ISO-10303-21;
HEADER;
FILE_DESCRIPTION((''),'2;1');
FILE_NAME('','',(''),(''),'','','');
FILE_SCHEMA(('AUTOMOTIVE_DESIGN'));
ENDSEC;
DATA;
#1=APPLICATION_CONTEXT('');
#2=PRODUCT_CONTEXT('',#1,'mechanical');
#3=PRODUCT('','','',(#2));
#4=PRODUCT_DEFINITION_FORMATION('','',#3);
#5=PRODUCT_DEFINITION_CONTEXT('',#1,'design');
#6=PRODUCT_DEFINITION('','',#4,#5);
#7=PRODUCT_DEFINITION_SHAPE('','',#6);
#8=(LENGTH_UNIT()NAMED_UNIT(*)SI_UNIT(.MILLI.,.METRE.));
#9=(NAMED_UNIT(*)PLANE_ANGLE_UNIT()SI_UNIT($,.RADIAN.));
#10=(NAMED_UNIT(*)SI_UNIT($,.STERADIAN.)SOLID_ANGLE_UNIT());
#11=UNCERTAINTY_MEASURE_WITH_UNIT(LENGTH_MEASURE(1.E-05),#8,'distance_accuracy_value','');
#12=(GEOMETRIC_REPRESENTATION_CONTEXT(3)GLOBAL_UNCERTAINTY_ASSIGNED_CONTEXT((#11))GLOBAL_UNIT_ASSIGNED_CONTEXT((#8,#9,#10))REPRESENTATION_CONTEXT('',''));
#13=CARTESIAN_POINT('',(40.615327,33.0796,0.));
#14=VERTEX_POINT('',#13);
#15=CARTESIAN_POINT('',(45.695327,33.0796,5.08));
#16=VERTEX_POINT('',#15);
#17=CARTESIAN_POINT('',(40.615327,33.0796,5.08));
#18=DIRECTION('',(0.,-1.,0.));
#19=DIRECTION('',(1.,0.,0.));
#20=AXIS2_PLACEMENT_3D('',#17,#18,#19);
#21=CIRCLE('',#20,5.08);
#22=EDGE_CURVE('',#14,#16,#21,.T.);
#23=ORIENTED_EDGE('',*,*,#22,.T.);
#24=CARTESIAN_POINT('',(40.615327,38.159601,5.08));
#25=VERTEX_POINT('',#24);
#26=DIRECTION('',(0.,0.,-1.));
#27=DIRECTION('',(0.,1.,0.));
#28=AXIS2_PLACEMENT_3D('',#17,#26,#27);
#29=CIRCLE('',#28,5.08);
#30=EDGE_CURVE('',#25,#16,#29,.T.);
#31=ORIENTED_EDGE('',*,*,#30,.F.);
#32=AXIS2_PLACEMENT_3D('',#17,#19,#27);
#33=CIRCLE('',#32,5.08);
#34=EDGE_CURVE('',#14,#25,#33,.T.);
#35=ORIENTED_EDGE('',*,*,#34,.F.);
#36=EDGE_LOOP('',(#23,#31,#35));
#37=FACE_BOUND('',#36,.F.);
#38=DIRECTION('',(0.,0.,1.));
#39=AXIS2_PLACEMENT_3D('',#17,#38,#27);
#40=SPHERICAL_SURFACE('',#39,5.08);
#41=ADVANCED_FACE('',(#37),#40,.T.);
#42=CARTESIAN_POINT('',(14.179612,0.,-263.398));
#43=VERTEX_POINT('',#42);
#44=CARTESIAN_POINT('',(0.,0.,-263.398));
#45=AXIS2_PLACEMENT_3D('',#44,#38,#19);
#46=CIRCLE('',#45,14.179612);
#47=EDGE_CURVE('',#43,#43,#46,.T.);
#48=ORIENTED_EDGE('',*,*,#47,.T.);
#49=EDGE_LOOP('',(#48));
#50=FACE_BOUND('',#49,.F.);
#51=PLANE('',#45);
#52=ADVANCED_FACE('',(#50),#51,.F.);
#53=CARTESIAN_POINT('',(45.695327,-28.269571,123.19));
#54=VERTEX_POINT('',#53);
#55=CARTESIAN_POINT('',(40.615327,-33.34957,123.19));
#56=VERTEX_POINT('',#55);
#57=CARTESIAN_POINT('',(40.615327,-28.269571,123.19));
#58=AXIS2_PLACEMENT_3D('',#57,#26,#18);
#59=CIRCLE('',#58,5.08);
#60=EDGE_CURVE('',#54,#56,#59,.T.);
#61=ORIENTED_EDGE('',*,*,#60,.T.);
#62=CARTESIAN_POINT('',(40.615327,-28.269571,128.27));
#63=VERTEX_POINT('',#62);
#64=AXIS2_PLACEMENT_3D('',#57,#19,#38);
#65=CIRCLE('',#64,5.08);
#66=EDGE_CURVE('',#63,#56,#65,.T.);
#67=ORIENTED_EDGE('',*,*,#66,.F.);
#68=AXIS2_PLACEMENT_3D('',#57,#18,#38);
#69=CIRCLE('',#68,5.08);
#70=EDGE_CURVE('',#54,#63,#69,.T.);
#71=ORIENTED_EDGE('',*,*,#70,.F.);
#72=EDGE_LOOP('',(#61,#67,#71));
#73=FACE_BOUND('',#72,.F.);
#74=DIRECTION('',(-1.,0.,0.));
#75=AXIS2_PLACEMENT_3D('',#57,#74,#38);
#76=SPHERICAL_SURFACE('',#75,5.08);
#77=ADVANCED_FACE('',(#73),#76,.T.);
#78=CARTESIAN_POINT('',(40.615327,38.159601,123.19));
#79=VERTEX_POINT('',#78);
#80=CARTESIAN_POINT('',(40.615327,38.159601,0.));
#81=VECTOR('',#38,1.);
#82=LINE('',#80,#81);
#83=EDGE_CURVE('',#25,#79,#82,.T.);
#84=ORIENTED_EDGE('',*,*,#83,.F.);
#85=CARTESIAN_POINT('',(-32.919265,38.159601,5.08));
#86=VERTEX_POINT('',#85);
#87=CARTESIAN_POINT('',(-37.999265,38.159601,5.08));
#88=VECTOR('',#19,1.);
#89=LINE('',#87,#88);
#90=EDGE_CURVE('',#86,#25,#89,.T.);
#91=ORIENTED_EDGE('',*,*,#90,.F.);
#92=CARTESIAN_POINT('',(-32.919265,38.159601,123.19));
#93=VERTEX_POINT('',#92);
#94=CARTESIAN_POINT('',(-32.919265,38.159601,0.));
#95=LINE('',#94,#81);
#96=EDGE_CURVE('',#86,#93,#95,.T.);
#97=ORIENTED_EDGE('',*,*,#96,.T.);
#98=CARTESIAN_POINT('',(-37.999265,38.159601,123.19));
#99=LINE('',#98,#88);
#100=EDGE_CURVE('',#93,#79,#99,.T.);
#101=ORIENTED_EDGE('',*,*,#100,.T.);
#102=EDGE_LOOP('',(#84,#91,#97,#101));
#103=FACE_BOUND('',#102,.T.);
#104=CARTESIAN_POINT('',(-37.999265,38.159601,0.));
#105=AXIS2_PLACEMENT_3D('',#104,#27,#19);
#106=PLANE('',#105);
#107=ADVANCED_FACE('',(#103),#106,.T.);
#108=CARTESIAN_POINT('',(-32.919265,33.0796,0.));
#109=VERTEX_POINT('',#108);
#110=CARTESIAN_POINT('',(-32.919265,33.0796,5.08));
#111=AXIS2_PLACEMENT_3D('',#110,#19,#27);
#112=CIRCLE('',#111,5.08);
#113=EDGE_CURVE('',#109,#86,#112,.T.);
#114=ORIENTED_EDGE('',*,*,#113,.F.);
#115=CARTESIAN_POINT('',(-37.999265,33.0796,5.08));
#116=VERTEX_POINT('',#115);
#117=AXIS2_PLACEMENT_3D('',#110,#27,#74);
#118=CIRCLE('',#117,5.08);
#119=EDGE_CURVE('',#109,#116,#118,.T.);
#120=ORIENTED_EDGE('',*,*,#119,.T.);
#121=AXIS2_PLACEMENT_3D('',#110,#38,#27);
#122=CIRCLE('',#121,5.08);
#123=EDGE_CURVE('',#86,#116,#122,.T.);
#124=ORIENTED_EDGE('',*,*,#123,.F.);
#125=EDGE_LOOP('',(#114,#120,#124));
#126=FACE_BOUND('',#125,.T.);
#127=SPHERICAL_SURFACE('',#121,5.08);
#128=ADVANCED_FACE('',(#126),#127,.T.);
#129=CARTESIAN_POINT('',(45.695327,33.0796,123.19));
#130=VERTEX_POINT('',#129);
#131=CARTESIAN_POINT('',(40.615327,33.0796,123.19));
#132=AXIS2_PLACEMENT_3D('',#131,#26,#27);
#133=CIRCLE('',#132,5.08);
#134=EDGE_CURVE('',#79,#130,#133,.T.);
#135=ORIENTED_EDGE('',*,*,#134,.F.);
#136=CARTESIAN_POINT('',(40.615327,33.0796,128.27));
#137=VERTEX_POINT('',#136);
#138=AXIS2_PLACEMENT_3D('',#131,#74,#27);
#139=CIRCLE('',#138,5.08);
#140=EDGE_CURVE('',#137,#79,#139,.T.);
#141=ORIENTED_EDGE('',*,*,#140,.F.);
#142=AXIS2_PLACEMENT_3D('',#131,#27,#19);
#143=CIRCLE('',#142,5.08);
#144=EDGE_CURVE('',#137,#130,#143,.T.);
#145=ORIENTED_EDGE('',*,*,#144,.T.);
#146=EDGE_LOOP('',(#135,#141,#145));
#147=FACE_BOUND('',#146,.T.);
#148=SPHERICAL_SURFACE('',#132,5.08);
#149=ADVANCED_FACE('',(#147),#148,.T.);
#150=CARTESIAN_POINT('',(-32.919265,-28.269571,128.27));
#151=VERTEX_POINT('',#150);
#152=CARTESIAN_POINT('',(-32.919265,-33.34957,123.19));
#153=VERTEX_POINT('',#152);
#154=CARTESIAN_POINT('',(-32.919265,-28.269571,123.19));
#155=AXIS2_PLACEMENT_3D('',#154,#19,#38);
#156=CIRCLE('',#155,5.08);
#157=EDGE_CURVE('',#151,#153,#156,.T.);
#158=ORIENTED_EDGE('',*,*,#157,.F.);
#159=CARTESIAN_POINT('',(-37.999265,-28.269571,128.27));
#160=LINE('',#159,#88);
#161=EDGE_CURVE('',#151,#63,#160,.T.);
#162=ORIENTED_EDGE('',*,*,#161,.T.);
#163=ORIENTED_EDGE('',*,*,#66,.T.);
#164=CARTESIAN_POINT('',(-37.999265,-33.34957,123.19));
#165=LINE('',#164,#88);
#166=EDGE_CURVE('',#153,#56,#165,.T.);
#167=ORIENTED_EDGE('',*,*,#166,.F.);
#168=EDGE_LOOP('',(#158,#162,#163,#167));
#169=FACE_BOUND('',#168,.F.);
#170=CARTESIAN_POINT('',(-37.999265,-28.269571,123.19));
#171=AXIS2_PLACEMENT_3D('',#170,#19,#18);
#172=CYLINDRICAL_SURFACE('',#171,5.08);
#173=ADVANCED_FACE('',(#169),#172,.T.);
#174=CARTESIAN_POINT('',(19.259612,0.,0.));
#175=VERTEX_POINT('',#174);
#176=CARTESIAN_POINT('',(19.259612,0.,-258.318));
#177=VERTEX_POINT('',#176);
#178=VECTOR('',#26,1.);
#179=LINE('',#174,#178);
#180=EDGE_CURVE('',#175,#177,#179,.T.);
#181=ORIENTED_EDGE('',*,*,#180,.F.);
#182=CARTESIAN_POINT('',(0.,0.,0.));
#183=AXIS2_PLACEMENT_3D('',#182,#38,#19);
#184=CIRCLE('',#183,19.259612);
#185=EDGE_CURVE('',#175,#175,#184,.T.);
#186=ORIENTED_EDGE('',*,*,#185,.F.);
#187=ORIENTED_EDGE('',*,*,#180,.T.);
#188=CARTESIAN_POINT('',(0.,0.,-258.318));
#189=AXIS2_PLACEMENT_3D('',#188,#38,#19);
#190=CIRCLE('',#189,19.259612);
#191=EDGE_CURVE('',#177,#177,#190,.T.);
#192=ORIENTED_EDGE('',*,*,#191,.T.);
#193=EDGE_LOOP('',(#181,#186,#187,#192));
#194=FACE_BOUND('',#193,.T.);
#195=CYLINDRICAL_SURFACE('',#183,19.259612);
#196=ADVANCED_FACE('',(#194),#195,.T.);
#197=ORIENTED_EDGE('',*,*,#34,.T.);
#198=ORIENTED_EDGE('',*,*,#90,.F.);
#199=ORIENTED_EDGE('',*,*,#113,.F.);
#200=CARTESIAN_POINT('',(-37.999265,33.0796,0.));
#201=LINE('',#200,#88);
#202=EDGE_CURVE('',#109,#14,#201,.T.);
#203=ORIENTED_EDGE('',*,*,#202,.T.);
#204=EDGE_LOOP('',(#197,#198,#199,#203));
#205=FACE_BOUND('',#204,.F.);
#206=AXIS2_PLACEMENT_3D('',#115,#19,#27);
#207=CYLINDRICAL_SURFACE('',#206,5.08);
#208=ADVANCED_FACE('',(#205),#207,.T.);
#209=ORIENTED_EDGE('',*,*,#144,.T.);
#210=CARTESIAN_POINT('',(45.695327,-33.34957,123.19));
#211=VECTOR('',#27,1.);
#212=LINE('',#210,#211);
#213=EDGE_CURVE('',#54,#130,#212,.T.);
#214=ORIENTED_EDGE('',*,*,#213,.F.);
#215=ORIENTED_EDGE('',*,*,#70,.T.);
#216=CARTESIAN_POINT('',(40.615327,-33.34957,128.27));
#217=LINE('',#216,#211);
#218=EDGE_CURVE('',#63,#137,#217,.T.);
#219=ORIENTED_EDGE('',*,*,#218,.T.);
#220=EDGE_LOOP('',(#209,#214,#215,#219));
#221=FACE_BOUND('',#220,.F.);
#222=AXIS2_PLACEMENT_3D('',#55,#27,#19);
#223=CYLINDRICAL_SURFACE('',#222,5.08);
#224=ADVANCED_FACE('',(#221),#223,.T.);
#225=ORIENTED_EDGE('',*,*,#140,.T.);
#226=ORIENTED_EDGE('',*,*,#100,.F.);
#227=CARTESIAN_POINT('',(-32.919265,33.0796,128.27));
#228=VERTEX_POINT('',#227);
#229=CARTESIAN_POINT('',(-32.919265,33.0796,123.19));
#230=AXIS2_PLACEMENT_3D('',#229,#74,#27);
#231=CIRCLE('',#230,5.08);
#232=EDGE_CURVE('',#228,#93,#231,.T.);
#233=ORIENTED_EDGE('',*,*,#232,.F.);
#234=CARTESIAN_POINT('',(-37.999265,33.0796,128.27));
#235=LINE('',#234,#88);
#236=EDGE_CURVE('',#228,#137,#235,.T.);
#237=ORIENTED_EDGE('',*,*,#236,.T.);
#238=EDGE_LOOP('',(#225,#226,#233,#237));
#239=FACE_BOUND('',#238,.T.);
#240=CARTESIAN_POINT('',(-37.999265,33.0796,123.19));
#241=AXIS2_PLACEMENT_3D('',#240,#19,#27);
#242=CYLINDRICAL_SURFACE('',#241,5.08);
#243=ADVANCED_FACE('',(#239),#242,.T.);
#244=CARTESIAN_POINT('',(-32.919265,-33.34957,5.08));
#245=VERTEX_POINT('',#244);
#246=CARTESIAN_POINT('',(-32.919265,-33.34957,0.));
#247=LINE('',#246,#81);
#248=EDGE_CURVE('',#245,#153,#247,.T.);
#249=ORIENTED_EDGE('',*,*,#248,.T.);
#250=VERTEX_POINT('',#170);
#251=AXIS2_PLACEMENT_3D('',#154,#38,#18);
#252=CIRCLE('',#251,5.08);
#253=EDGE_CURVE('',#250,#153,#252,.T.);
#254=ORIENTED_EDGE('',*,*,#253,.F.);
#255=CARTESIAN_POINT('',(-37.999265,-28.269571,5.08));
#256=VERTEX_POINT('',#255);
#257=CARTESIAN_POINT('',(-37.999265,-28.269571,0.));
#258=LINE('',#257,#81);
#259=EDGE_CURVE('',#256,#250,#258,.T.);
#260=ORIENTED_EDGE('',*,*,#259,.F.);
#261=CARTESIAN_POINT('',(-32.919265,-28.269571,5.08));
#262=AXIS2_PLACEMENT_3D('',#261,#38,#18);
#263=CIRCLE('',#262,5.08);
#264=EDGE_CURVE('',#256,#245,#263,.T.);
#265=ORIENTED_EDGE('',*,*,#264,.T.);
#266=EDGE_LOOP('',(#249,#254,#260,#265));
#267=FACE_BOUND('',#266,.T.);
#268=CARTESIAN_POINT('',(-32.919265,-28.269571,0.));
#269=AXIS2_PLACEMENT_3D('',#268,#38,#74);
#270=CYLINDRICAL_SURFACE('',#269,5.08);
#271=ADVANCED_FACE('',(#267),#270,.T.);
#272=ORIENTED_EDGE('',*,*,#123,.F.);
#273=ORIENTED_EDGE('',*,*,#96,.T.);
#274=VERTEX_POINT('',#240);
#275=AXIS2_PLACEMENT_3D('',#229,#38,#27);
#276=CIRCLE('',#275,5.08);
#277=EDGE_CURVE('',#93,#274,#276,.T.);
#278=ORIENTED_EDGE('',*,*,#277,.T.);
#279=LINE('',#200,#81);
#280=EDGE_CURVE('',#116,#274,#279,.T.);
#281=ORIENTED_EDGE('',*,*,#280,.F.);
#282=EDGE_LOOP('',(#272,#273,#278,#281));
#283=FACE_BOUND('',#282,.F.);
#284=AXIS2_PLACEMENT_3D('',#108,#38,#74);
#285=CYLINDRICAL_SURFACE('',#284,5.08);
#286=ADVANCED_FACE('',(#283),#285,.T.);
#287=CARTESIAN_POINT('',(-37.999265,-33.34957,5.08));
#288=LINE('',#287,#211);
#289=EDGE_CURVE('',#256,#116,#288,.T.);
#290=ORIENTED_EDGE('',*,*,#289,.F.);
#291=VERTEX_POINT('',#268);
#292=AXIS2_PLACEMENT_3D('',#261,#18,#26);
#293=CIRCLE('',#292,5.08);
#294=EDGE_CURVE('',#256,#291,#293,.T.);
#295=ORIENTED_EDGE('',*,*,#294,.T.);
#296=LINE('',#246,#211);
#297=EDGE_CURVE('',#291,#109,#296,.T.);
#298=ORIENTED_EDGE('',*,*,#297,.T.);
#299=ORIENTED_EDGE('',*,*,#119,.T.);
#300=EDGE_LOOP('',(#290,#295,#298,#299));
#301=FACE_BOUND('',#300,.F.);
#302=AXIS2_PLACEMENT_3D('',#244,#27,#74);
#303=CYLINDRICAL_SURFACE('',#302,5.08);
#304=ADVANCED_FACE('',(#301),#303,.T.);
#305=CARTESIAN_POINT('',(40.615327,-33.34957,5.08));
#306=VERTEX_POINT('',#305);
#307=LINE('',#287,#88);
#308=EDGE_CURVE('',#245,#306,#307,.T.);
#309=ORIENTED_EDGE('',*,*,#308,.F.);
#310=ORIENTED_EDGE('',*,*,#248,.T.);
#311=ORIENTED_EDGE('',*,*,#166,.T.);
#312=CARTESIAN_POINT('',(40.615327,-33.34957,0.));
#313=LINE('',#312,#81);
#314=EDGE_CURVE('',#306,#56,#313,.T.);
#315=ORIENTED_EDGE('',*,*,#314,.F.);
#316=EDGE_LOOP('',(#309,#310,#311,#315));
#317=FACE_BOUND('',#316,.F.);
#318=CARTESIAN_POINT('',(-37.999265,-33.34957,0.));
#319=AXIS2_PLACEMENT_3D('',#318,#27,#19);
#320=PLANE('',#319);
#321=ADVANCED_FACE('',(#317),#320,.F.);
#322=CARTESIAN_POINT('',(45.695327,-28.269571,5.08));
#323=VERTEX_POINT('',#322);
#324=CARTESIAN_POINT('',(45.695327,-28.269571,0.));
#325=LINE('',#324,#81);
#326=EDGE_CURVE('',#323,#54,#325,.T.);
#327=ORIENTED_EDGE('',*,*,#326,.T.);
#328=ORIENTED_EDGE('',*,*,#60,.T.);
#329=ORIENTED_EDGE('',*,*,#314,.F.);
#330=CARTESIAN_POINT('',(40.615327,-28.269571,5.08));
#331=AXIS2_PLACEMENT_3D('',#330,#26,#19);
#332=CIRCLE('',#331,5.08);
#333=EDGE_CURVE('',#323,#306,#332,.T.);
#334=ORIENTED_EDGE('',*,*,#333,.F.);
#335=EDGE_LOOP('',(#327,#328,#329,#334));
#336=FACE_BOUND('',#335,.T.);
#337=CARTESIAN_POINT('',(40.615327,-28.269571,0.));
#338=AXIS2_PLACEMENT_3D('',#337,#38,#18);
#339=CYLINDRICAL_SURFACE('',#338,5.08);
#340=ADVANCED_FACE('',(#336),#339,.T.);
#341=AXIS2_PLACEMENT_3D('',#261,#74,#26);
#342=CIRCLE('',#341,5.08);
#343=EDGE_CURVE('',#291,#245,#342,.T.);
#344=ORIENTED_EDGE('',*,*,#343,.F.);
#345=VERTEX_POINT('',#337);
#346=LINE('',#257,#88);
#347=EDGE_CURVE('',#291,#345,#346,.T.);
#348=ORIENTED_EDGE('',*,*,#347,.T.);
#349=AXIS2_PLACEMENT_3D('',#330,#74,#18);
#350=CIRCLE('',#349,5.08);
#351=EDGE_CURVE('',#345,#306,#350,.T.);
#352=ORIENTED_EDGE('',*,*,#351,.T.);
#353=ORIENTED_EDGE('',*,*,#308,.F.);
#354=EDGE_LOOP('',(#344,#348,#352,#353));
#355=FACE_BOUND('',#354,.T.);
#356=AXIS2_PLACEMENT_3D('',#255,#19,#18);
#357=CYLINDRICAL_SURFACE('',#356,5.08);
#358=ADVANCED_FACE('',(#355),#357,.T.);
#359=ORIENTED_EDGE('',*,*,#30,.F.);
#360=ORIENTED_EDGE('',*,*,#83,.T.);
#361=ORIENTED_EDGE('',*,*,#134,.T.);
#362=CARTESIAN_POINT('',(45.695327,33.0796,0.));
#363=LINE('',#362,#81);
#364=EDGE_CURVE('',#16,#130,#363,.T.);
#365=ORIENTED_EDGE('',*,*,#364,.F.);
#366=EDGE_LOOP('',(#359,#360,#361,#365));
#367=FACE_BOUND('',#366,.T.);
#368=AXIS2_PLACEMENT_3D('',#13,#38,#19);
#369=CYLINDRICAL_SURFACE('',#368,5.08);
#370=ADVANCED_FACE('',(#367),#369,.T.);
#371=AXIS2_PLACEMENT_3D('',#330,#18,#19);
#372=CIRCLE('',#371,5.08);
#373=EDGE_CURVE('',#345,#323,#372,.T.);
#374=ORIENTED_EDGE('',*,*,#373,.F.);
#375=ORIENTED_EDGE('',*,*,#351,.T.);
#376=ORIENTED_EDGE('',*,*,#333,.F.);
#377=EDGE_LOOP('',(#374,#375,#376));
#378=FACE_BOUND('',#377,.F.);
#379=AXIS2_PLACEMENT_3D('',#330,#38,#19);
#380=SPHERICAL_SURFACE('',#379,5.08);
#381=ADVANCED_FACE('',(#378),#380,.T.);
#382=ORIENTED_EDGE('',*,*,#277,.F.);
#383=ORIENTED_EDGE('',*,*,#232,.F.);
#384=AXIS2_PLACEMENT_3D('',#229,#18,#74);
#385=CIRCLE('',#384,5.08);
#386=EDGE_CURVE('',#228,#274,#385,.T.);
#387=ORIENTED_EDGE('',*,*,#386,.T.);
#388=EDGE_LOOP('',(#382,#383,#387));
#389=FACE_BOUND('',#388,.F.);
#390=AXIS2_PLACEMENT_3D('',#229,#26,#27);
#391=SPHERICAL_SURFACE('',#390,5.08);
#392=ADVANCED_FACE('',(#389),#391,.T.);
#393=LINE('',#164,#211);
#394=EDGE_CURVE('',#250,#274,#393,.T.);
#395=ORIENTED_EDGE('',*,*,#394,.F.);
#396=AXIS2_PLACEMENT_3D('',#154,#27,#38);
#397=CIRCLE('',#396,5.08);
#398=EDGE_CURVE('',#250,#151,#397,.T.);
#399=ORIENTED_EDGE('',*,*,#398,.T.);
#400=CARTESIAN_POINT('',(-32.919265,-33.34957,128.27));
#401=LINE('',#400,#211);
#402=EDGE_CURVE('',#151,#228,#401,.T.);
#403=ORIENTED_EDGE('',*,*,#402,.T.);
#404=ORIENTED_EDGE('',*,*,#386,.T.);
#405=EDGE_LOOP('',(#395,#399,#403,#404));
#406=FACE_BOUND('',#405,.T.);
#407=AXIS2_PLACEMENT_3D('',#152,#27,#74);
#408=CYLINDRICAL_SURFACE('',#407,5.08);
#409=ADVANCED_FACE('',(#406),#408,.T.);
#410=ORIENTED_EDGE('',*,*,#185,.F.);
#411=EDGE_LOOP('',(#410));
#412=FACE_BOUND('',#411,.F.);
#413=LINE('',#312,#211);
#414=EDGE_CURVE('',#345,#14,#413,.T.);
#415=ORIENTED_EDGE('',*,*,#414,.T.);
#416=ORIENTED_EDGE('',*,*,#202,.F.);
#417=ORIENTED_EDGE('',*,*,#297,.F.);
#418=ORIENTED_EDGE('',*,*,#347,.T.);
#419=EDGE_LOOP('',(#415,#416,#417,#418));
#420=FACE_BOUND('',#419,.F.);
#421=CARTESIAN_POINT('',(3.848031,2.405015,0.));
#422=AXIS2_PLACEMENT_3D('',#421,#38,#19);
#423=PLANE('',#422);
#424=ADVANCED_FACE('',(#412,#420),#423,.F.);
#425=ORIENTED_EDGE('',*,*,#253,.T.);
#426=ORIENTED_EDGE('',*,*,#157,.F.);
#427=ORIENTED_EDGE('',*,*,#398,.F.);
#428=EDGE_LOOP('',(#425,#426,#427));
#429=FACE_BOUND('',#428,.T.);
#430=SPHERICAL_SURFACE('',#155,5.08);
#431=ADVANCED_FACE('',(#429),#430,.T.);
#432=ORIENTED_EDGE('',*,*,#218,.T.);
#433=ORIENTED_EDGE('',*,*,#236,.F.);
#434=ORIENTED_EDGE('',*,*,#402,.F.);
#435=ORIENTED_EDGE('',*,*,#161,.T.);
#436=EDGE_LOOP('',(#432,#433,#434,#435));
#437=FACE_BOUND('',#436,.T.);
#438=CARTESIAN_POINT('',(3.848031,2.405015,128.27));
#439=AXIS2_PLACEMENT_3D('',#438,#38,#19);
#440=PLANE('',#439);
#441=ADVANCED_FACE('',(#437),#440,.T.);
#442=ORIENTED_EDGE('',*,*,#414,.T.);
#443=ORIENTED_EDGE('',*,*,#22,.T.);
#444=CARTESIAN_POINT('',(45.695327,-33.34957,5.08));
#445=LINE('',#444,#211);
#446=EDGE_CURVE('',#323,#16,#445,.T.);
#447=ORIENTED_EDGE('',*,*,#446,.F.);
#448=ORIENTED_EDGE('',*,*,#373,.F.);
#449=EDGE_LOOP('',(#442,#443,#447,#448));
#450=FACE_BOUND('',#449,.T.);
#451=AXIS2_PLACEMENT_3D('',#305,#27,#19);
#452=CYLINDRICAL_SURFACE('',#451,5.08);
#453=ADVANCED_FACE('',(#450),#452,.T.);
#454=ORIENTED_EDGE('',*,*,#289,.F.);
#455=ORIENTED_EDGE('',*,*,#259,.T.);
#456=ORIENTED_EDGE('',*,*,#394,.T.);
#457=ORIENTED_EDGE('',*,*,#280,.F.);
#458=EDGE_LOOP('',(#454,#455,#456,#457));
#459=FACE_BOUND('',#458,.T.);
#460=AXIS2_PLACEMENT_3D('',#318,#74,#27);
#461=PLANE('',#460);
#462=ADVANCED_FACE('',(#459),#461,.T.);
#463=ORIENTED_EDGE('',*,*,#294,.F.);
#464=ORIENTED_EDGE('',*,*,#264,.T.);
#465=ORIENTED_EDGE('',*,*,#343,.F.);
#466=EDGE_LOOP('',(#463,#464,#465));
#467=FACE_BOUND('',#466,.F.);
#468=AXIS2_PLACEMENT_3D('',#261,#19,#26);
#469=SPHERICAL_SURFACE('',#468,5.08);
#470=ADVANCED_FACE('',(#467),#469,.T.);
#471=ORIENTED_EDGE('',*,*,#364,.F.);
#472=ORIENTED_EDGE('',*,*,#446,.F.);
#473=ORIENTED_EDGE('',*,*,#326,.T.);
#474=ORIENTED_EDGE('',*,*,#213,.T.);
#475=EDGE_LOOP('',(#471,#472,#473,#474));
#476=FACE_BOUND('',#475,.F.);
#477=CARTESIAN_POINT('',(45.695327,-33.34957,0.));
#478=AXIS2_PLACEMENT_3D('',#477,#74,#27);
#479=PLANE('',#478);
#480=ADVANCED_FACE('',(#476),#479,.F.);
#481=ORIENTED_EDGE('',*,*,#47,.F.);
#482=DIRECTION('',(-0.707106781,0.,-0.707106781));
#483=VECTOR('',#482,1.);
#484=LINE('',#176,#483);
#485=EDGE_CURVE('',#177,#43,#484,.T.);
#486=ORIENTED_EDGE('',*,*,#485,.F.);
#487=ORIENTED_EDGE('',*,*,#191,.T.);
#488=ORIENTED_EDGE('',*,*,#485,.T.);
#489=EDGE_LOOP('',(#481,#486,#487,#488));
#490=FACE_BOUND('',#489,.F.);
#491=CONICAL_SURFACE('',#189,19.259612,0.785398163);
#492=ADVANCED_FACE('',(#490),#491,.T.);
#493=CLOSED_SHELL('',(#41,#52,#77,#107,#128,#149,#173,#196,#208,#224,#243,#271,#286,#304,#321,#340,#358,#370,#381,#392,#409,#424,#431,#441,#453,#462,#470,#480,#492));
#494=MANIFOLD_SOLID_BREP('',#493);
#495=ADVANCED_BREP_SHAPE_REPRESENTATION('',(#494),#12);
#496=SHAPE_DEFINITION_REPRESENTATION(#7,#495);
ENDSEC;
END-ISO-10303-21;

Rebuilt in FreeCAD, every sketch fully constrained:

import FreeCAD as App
import Part
import Sketcher

V = App.Vector
Q = App.Units.Quantity


def edges_at(feature, points):
    """Names of the edges that pass closest to the given points."""
    edges = feature.Shape.Edges
    near = lambda p: min(range(len(edges)), key=lambda i: edges[i].distToShape(Part.Vertex(*p))[0])
    return sorted({f"Edge{near(p) + 1}" for p in points})


def add_polygon(sketch, points):
    """Adds a closed chain of lines whose ends are joined by coincident constraints."""
    first, n = sketch.GeometryCount, len(points)
    for a, b in zip(points, points[1:] + points[:1]):
        sketch.addGeometry(Part.LineSegment(App.Vector(*a, 0), App.Vector(*b, 0)), False)
    for i in range(n):
        sketch.addConstraint(Sketcher.Constraint("Coincident", first + i, 2, first + (i + 1) % n, 1))

doc = App.newDocument("Part")
body = doc.addObject("PartDesign::Body", "Body")

sketch1 = body.newObject("Sketcher::SketchObject", "Sketch")
sketch1.AttachmentSupport = (doc.getObject("XY_Plane"), [""])
sketch1.MapMode = "FlatFace"
add_polygon(sketch1, [(-38, 38), (-38, -33), (46, -33), (46, 38)])
sketch1.addConstraint(Sketcher.Constraint("Vertical", 0))
sketch1.addConstraint(Sketcher.Constraint("Horizontal", 1))
sketch1.addConstraint(Sketcher.Constraint("Vertical", 2))
sketch1.addConstraint(Sketcher.Constraint("Horizontal", 3))
sketch1.addConstraint(Sketcher.Constraint("DistanceX", 1, 1, 1, 2, Q("83.694592 mm")))
sketch1.addConstraint(Sketcher.Constraint("DistanceY", 0, 2, 0, 1, Q("71.509171 mm")))
sketch1.addConstraint(Sketcher.Constraint("DistanceY", -1, 1, 2, 2, Q("38.159601 mm")))
sketch1.addConstraint(Sketcher.Constraint("DistanceX", 0, 2, -1, 1, Q("37.999265 mm")))
pad1 = body.newObject("PartDesign::Pad", "Pad")
pad1.Profile = sketch1
pad1.Length = Q("5.05 in")
doc.recompute()

fillet = body.newObject("PartDesign::Fillet", "Fillet")
fillet.Base = (pad1, ["Edge1"])
fillet.UseAllEdges = True
fillet.Radius = Q("0.2 in")

sketch2 = body.newObject("Sketcher::SketchObject", "Sketch001")
sketch2.AttachmentSupport = (doc.getObject("XY_Plane"), [""])
sketch2.MapMode = "FlatFace"
sketch2.addGeometry(Part.Circle(V(0, 0, 0), V(0, 0, 1), 19), False)
sketch2.addConstraint(Sketcher.Constraint("Coincident", 0, 3, -1, 1))
sketch2.addConstraint(Sketcher.Constraint("Diameter", 0, Q("38.519224 mm")))
pad2 = body.newObject("PartDesign::Pad", "Pad001")
pad2.Profile = sketch2
pad2.Length = Q("10.37 in")
pad2.Reversed = True
doc.recompute()

chamfer = body.newObject("PartDesign::Chamfer", "Chamfer")
chamfer.Base = (pad2, edges_at(pad2, [(-19.26, 0, -263.398)]))
chamfer.Size = Q("0.2 in")

doc.recompute()
